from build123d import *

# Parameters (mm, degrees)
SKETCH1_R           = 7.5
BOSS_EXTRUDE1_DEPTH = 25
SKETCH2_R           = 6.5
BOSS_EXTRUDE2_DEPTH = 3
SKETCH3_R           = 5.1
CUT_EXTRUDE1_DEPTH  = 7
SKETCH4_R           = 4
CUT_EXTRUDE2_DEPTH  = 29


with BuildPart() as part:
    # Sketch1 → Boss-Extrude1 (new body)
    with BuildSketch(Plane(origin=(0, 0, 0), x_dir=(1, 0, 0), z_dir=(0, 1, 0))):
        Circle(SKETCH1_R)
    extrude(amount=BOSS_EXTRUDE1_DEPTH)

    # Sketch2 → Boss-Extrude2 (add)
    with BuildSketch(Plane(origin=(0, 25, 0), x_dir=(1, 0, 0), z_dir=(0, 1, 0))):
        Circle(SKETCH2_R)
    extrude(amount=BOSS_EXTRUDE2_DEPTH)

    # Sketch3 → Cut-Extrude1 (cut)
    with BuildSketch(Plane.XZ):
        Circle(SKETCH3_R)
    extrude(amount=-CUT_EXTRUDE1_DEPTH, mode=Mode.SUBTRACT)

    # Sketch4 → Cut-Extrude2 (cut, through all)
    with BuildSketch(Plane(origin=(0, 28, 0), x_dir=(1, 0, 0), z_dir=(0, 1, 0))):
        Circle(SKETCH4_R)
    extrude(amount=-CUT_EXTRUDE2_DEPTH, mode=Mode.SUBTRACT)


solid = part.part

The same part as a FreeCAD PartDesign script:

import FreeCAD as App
import Part
import Sketcher
from FreeCAD import Vector
Q = App.Units.Quantity

doc = App.newDocument("Part")
body = doc.addObject("PartDesign::Body", "Body")

sketch1 = body.newObject("Sketcher::SketchObject", "Sketch")
sketch1.AttachmentSupport = (doc.getObject("XZ_Plane"), [""])
sketch1.MapMode = "FlatFace"
sketch1.addGeometry(Part.Circle(Vector(0, 0, 0), Vector(0, 0, 1), 8), False)
sketch1.addConstraint([
    Sketcher.Constraint("Coincident", 0, 3, -1, 1),
    Sketcher.Constraint("Diameter", 0, Q("15 mm")),
])
pad1 = body.newObject("PartDesign::Pad", "Pad")
pad1.Profile = sketch1
pad1.Length = 25
pad1.Reversed = True

sketch2 = body.newObject("Sketcher::SketchObject", "Sketch001")
sketch2.AttachmentSupport = (doc.getObject("XZ_Plane"), [""])
sketch2.MapMode = "FlatFace"
sketch2.AttachmentOffset = App.Placement(Vector(0, 0, -25), App.Rotation())
sketch2.addGeometry(Part.Circle(Vector(0, 0, 0), Vector(0, 0, 1), 6), False)
sketch2.addConstraint([
    Sketcher.Constraint("Coincident", 0, 3, -1, 1),
    Sketcher.Constraint("Diameter", 0, Q("13 mm")),
])
pad2 = body.newObject("PartDesign::Pad", "Pad001")
pad2.Profile = sketch2
pad2.Length = 3
pad2.Reversed = True

sketch3 = body.newObject("Sketcher::SketchObject", "Sketch002")
sketch3.AttachmentSupport = (doc.getObject("XZ_Plane"), [""])
sketch3.MapMode = "FlatFace"
sketch3.addGeometry(Part.Circle(Vector(0, 0, 0), Vector(0, 0, 1), 5), False)
sketch3.addConstraint([
    Sketcher.Constraint("Coincident", 0, 3, -1, 1),
    Sketcher.Constraint("Diameter", 0, Q("10.2 mm")),
])
pocket1 = body.newObject("PartDesign::Pocket", "Pocket")
pocket1.Profile = sketch3
pocket1.Length = 7

sketch4 = body.newObject("Sketcher::SketchObject", "Sketch003")
sketch4.AttachmentSupport = (doc.getObject("XZ_Plane"), [""])
sketch4.MapMode = "FlatFace"
sketch4.AttachmentOffset = App.Placement(Vector(0, 0, -28), App.Rotation())
sketch4.addGeometry(Part.Circle(Vector(0, 0, 0), Vector(0, 0, 1), 4), False)
sketch4.addConstraint([
    Sketcher.Constraint("Coincident", 0, 3, -1, 1),
    Sketcher.Constraint("Diameter", 0, Q("8 mm")),
])
pocket2 = body.newObject("PartDesign::Pocket", "Pocket001")
pocket2.Profile = sketch4
pocket2.Type = "ThroughAll"
pocket2.Reversed = True

doc.recompute()
